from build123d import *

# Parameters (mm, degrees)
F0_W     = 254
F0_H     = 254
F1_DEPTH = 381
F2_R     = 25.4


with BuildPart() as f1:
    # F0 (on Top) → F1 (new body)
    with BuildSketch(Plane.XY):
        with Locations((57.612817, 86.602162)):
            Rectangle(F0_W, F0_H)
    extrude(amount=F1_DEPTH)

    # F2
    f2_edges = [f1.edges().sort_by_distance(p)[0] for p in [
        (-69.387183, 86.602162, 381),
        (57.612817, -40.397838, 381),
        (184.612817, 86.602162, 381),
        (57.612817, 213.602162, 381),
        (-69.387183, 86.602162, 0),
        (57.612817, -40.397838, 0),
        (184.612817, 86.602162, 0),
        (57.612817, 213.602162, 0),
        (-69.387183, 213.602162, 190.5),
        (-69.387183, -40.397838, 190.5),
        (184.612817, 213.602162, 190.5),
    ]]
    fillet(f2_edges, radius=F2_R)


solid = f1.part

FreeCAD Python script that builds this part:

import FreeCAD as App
import Part
import Sketcher

V = App.Vector
Q = App.Units.Quantity


def edges_at(feature, points):
    """Names of the edges that pass closest to the given points."""
    edges = feature.Shape.Edges
    near = lambda p: min(range(len(edges)), key=lambda i: edges[i].distToShape(Part.Vertex(*p))[0])
    return sorted({f"Edge{near(p) + 1}" for p in points})

doc = App.newDocument("Part")
params = doc.addObject("Spreadsheet::Sheet", "Params")
for row, (alias, value) in enumerate([
    ("sketch1_width", "10 in"),
    ("pad1_length", "15 in"),
    ("fillet_radius", "1 in"),
], start=1):
    params.set(f"A{row}", alias)
    params.set(f"B{row}", "=" + value)
    params.setAlias(f"B{row}", alias)

body = doc.addObject("PartDesign::Body", "Body")

# Sketch on XY plane
sketch1 = body.newObject("Sketcher::SketchObject", "Sketch")
sketch1.AttachmentSupport = (doc.getObject("XY_Plane"), [""])
sketch1.MapMode = "FlatFace"
sketch1.addGeometry(Part.LineSegment(V(-69.387183, 213.602162, 0), V(-69.387183, -40.397838, 0)), False)
sketch1.addGeometry(Part.LineSegment(V(-69.387183, -40.397838, 0), V(184.612817, -40.397838, 0)), False)
sketch1.addGeometry(Part.LineSegment(V(184.612817, -40.397838, 0), V(184.612817, 213.602162, 0)), False)
sketch1.addGeometry(Part.LineSegment(V(184.612817, 213.602162, 0), V(-69.387183, 213.602162, 0)), False)
sketch1.addConstraint(Sketcher.Constraint("Coincident", 0, 2, 1, 1))
sketch1.addConstraint(Sketcher.Constraint("Coincident", 1, 2, 2, 1))
sketch1.addConstraint(Sketcher.Constraint("Coincident", 2, 2, 3, 1))
sketch1.addConstraint(Sketcher.Constraint("Coincident", 3, 2, 0, 1))
sketch1.addConstraint(Sketcher.Constraint("Vertical", 0))
sketch1.addConstraint(Sketcher.Constraint("Horizontal", 1))
sketch1.addConstraint(Sketcher.Constraint("Vertical", 2))
sketch1.addConstraint(Sketcher.Constraint("Horizontal", 3))
sketch1.addConstraint(Sketcher.Constraint("Equal", 3, 0))
sketch1.addConstraint(Sketcher.Constraint("DistanceX", 1, 1, 1, 2, Q("10 in")))
sketch1.addConstraint(Sketcher.Constraint("DistanceY", -1, 1, 2, 2, 213.602162))
sketch1.addConstraint(Sketcher.Constraint("DistanceX", 0, 2, -1, 1, 69.387183))
sketch1.setExpression("Constraints[9]", "Params.sketch1_width")
pad1 = body.newObject("PartDesign::Pad", "Pad")
pad1.Profile = sketch1
pad1.setExpression("Length", "Params.pad1_length")
doc.recompute()

fillet = body.newObject("PartDesign::Fillet", "Fillet")
fillet.Base = (pad1, edges_at(pad1, [
    (-69.387, 86.602, 381),
    (57.613, -40.398, 381),
    (184.613, 86.602, 381),
    (57.613, 213.602, 381),
    (-69.387, 86.602, 0),
    (57.613, -40.398, 0),
    (184.613, 86.602, 0),
    (57.613, 213.602, 0),
    (-69.387, 213.602, 190.5),
    (-69.387, -40.398, 190.5),
    (184.613, 213.602, 190.5),
]))
fillet.setExpression("Radius", "Params.fillet_radius")

doc.recompute()
